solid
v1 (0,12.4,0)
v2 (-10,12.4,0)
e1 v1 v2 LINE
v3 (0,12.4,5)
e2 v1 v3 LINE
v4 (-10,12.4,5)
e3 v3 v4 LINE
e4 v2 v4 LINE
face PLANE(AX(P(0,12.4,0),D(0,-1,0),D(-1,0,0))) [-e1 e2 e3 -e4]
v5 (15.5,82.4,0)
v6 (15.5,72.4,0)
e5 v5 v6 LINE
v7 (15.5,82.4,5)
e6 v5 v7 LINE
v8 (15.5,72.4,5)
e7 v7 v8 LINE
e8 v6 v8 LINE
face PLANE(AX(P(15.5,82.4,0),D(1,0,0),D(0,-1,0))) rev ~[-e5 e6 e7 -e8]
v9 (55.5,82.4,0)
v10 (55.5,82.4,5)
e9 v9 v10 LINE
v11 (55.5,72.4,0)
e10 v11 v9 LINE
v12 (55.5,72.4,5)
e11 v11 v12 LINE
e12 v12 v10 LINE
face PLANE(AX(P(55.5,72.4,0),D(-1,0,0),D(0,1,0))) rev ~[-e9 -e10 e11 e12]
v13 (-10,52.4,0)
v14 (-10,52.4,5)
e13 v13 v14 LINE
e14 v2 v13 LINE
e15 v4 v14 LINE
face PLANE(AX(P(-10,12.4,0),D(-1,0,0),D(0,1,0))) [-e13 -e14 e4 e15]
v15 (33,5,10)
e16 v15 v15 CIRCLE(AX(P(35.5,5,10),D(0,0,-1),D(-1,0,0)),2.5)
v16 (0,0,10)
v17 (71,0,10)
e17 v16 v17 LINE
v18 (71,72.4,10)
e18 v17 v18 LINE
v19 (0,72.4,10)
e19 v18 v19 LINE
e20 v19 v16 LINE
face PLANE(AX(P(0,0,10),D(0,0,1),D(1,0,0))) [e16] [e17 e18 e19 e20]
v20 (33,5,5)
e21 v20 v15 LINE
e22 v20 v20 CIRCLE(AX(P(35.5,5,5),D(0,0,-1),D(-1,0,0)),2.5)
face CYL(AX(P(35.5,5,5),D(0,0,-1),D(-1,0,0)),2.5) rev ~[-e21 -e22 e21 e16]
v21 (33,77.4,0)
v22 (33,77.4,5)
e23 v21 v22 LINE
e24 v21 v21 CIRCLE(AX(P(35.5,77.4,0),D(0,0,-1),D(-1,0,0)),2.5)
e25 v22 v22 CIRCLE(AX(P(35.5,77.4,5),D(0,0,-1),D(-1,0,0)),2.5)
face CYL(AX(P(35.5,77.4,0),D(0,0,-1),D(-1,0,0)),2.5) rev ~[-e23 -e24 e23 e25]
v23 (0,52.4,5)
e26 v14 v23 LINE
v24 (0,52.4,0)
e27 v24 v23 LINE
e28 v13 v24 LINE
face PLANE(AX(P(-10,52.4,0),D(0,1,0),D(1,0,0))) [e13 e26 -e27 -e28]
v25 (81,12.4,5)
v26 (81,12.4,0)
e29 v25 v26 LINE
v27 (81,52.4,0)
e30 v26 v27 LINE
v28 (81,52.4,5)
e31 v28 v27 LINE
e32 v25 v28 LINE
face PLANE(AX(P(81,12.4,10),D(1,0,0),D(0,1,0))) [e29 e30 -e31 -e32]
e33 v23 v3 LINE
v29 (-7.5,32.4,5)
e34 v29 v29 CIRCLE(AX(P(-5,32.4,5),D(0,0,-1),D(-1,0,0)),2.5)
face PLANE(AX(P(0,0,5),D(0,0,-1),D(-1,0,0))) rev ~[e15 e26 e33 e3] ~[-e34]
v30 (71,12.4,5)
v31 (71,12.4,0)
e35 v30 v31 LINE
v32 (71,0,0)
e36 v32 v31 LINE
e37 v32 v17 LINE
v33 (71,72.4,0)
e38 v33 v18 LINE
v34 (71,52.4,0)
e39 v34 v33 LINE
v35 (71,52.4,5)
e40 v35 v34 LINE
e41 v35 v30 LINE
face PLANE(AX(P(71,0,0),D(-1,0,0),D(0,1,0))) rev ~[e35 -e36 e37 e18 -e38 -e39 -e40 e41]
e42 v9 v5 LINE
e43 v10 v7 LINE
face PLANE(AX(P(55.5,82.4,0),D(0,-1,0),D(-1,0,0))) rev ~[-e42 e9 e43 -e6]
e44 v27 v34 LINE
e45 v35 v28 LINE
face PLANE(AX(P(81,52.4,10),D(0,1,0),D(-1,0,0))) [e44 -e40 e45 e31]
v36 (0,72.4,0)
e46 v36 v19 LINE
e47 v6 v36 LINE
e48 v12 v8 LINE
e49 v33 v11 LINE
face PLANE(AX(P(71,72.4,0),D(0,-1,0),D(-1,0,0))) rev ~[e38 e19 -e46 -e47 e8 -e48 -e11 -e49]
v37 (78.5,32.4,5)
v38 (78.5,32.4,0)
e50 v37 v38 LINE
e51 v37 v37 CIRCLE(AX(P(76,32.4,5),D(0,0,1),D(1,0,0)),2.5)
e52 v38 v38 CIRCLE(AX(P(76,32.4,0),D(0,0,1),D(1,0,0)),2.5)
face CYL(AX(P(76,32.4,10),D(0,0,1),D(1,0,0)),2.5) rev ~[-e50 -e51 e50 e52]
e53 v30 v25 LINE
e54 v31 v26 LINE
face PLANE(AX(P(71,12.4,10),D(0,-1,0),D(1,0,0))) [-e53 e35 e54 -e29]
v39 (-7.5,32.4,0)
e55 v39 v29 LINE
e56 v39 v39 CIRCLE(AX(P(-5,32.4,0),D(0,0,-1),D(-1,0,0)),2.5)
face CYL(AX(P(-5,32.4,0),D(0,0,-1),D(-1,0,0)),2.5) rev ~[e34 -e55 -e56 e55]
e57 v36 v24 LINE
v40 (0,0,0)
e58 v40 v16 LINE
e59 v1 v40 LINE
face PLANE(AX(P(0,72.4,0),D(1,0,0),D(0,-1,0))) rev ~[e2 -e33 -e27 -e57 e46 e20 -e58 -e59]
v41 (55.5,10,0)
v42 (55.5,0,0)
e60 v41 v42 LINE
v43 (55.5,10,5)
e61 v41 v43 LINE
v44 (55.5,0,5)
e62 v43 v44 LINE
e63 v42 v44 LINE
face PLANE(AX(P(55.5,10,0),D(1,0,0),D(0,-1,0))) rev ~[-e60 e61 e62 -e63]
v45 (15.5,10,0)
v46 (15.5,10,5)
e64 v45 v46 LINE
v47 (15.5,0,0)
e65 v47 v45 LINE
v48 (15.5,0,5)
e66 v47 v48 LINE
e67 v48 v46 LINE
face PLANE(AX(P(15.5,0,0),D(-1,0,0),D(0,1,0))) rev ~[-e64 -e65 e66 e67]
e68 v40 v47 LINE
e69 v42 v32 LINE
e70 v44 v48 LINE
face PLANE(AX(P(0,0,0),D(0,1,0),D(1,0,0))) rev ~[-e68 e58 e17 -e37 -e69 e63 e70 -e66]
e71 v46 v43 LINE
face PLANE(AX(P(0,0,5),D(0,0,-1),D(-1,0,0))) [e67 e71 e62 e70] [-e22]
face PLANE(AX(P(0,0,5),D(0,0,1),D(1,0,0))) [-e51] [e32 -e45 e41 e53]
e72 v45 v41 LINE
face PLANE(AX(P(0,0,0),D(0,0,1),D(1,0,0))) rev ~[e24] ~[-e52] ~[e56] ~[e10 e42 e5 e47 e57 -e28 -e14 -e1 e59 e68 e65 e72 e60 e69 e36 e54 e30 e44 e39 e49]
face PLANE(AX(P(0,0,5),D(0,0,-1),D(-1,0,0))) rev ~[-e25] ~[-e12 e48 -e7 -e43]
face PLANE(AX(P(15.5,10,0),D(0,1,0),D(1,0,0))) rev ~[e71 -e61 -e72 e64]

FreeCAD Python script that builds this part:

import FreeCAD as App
import Part
import Sketcher


def add_polygon(sketch, points):
    """Adds a closed chain of lines whose ends are joined by coincident constraints."""
    first, n = sketch.GeometryCount, len(points)
    for a, b in zip(points, points[1:] + points[:1]):
        sketch.addGeometry(Part.LineSegment(App.Vector(*a, 0), App.Vector(*b, 0)), False)
    for i in range(n):
        sketch.addConstraint(Sketcher.Constraint("Coincident", first + i, 2, first + (i + 1) % n, 1))

doc = App.newDocument("Part")
body = doc.addObject("PartDesign::Body", "Body")

sketch1 = doc.addObject("Sketcher::SketchObject", "Sketch")
body.addObject(sketch1)
sketch1.AttachmentSupport = (doc.XY_Plane, [""])
sketch1.MapMode = "FlatFace"
add_polygon(sketch1, [(0, 72.4), (0, 0), (71, 0), (71, 72.4)])
sketch1.addConstraint([
    Sketcher.Constraint("Vertical", 0),
    Sketcher.Constraint("Horizontal", 1),
    Sketcher.Constraint("Vertical", 2),
    Sketcher.Constraint("Horizontal", 3),
    Sketcher.Constraint("Coincident", 0, 2, -1, 1),
    Sketcher.Constraint("DistanceX", 1, 1, 1, 2, 71.0),
    Sketcher.Constraint("DistanceY", 0, 2, 0, 1, 72.4),
])
pad1 = doc.addObject("PartDesign::Pad", "Pad")
body.addObject(pad1)
pad1.Profile = sketch1
pad1.Length = 10

sketch2 = doc.addObject("Sketcher::SketchObject", "Sketch001")
body.addObject(sketch2)
sketch2.AttachmentSupport = (doc.XY_Plane, [""])
sketch2.MapMode = "FlatFace"
sketch2.AttachmentOffset = App.Placement(App.Vector(0, 0, 10), App.Rotation())
add_polygon(sketch2, [(71, 52.4), (71, 12.4), (81, 12.4), (81, 52.4)])
sketch2.addGeometry(Part.Circle(App.Vector(76, 32.4, 0), App.Vector(0, 0, 1), 2.5), False)
sketch2.addConstraint([
    Sketcher.Constraint("Vertical", 0),
    Sketcher.Constraint("Horizontal", 1),
    Sketcher.Constraint("Vertical", 2),
    Sketcher.Constraint("Horizontal", 3),
    Sketcher.Constraint("Diameter", 4, 5.0),
    Sketcher.Constraint("DistanceX", 1, 1, 1, 2, 10.0),
    Sketcher.Constraint("DistanceY", 0, 2, 0, 1, 40.0),
    Sketcher.Constraint("DistanceX", 0, 2, 4, 3, 5.0),
    Sketcher.Constraint("DistanceY", 0, 2, 4, 3, 20.0),
    Sketcher.Constraint("DistanceX", -1, 1, 4, 3, 76.0),
    Sketcher.Constraint("DistanceY", -1, 1, 4, 3, 32.4),
])
pad2 = doc.addObject("PartDesign::Pad", "Pad001")
body.addObject(pad2)
pad2.Profile = sketch2
pad2.Length = 10
pad2.Reversed = True

sketch3 = doc.addObject("Sketcher::SketchObject", "Sketch002")
body.addObject(sketch3)
sketch3.AttachmentSupport = (doc.XY_Plane, [""])
sketch3.MapMode = "FlatFace"
sketch3.AttachmentOffset = App.Placement(App.Vector(0, 0, 10), App.Rotation())
add_polygon(sketch3, [(81, 52.4), (71, 52.4), (71, 12.4), (81, 12.4)])
sketch3.addConstraint([
    Sketcher.Constraint("Horizontal", 0),
    Sketcher.Constraint("Vertical", 1),
    Sketcher.Constraint("Horizontal", 2),
    Sketcher.Constraint("Vertical", 3),
    Sketcher.Constraint("DistanceX", 0, 2, 0, 1, 10.0),
    Sketcher.Constraint("DistanceY", 1, 2, 1, 1, 40.0),
    Sketcher.Constraint("DistanceX", -1, 1, 0, 2, 71.0),
    Sketcher.Constraint("DistanceY", -1, 1, 0, 2, 52.4),
])
pocket1 = doc.addObject("PartDesign::Pocket", "Pocket")
body.addObject(pocket1)
pocket1.Profile = sketch3
pocket1.Length = 5

sketch4 = doc.addObject("Sketcher::SketchObject", "Sketch003")
body.addObject(sketch4)
sketch4.AttachmentSupport = (doc.XY_Plane, [""])
sketch4.MapMode = "FlatFace"
add_polygon(sketch4, [(15.5, 0), (15.5, 10), (55.5, 10), (55.5, 0)])
sketch4.addConstraint([
    Sketcher.Constraint("Vertical", 0),
    Sketcher.Constraint("Horizontal", 1),
    Sketcher.Constraint("Vertical", 2),
    Sketcher.Constraint("Horizontal", 3),
    Sketcher.Constraint("PointOnObject", 2, 2, -1),
    Sketcher.Constraint("DistanceX", 1, 1, 1, 2, 40.0),
    Sketcher.Constraint("DistanceY", 0, 1, 0, 2, 10.0),
    Sketcher.Constraint("DistanceX", -1, 1, 0, 2, 15.5),
])
pocket2 = doc.addObject("PartDesign::Pocket", "Pocket001")
body.addObject(pocket2)
pocket2.Profile = sketch4
pocket2.Length = 5
pocket2.Reversed = True

sketch5 = doc.addObject("Sketcher::SketchObject", "Sketch004")
body.addObject(sketch5)
sketch5.AttachmentSupport = (doc.XY_Plane, [""])
sketch5.MapMode = "FlatFace"
sketch5.AttachmentOffset = App.Placement(App.Vector(0, 0, 5), App.Rotation())
sketch5.addGeometry(Part.Circle(App.Vector(35.5, 5, 0), App.Vector(0, 0, 1), 2.5), False)
sketch5.addConstraint([
    Sketcher.Constraint("Diameter", 0, 5.0),
    Sketcher.Constraint("DistanceY", -1, 1, 0, 3, 5.0),
    Sketcher.Constraint("DistanceX", -1, 1, 0, 3, 35.5),
])
pocket3 = doc.addObject("PartDesign::Pocket", "Pocket002")
body.addObject(pocket3)
pocket3.Profile = sketch5
pocket3.Type = "ThroughAll"
pocket3.Reversed = True

sketch6 = doc.addObject("Sketcher::SketchObject", "Sketch005")
body.addObject(sketch6)
sketch6.AttachmentSupport = (doc.XY_Plane, [""])
sketch6.MapMode = "FlatFace"
add_polygon(sketch6, [(-10, 52.4), (0, 52.4), (0, 12.4), (-10, 12.4)])
sketch6.addGeometry(Part.Circle(App.Vector(-5, 32.4, 0), App.Vector(0, 0, 1), 2.5), False)
sketch6.addConstraint([
    Sketcher.Constraint("Horizontal", 0),
    Sketcher.Constraint("Vertical", 1),
    Sketcher.Constraint("Horizontal", 2),
    Sketcher.Constraint("Vertical", 3),
    Sketcher.Constraint("PointOnObject", 0, 2, -2),
    Sketcher.Constraint("Diameter", 4, 5.0),
    Sketcher.Constraint("DistanceX", 0, 1, 0, 2, 10.0),
    Sketcher.Constraint("DistanceY", 1, 2, 1, 1, 40.0),
    Sketcher.Constraint("DistanceX", 4, 3, -1, 1, 5.0),
    Sketcher.Constraint("DistanceY", 4, 3, 0, 2, 20.0),
    Sketcher.Constraint("DistanceY", -1, 1, 4, 3, 32.4),
])
pad3 = doc.addObject("PartDesign::Pad", "Pad002")
body.addObject(pad3)
pad3.Profile = sketch6
pad3.Length = 5

sketch7 = doc.addObject("Sketcher::SketchObject", "Sketch006")
body.addObject(sketch7)
sketch7.AttachmentSupport = (doc.XY_Plane, [""])
sketch7.MapMode = "FlatFace"
add_polygon(sketch7, [(55.5, 82.4), (55.5, 72.4), (15.5, 72.4), (15.5, 82.4)])
sketch7.addGeometry(Part.Circle(App.Vector(35.5, 77.4, 0), App.Vector(0, 0, 1), 2.5), False)
sketch7.addConstraint([
    Sketcher.Constraint("Vertical", 0),
    Sketcher.Constraint("Horizontal", 1),
    Sketcher.Constraint("Vertical", 2),
    Sketcher.Constraint("Horizontal", 3),
    Sketcher.Constraint("Diameter", 4, 5.0),
    Sketcher.Constraint("DistanceX", 1, 2, 1, 1, 40.0),
    Sketcher.Constraint("DistanceY", 0, 2, 0, 1, 10.0),
    Sketcher.Constraint("DistanceY", 0, 2, 4, 3, 5.0),
    Sketcher.Constraint("DistanceX", 4, 3, 0, 2, 20.0),
    Sketcher.Constraint("DistanceX", -1, 1, 4, 3, 35.5),
    Sketcher.Constraint("DistanceY", -1, 1, 4, 3, 77.4),
])
pad4 = doc.addObject("PartDesign::Pad", "Pad003")
body.addObject(pad4)
pad4.Profile = sketch7
pad4.Length = 5

doc.recompute()
